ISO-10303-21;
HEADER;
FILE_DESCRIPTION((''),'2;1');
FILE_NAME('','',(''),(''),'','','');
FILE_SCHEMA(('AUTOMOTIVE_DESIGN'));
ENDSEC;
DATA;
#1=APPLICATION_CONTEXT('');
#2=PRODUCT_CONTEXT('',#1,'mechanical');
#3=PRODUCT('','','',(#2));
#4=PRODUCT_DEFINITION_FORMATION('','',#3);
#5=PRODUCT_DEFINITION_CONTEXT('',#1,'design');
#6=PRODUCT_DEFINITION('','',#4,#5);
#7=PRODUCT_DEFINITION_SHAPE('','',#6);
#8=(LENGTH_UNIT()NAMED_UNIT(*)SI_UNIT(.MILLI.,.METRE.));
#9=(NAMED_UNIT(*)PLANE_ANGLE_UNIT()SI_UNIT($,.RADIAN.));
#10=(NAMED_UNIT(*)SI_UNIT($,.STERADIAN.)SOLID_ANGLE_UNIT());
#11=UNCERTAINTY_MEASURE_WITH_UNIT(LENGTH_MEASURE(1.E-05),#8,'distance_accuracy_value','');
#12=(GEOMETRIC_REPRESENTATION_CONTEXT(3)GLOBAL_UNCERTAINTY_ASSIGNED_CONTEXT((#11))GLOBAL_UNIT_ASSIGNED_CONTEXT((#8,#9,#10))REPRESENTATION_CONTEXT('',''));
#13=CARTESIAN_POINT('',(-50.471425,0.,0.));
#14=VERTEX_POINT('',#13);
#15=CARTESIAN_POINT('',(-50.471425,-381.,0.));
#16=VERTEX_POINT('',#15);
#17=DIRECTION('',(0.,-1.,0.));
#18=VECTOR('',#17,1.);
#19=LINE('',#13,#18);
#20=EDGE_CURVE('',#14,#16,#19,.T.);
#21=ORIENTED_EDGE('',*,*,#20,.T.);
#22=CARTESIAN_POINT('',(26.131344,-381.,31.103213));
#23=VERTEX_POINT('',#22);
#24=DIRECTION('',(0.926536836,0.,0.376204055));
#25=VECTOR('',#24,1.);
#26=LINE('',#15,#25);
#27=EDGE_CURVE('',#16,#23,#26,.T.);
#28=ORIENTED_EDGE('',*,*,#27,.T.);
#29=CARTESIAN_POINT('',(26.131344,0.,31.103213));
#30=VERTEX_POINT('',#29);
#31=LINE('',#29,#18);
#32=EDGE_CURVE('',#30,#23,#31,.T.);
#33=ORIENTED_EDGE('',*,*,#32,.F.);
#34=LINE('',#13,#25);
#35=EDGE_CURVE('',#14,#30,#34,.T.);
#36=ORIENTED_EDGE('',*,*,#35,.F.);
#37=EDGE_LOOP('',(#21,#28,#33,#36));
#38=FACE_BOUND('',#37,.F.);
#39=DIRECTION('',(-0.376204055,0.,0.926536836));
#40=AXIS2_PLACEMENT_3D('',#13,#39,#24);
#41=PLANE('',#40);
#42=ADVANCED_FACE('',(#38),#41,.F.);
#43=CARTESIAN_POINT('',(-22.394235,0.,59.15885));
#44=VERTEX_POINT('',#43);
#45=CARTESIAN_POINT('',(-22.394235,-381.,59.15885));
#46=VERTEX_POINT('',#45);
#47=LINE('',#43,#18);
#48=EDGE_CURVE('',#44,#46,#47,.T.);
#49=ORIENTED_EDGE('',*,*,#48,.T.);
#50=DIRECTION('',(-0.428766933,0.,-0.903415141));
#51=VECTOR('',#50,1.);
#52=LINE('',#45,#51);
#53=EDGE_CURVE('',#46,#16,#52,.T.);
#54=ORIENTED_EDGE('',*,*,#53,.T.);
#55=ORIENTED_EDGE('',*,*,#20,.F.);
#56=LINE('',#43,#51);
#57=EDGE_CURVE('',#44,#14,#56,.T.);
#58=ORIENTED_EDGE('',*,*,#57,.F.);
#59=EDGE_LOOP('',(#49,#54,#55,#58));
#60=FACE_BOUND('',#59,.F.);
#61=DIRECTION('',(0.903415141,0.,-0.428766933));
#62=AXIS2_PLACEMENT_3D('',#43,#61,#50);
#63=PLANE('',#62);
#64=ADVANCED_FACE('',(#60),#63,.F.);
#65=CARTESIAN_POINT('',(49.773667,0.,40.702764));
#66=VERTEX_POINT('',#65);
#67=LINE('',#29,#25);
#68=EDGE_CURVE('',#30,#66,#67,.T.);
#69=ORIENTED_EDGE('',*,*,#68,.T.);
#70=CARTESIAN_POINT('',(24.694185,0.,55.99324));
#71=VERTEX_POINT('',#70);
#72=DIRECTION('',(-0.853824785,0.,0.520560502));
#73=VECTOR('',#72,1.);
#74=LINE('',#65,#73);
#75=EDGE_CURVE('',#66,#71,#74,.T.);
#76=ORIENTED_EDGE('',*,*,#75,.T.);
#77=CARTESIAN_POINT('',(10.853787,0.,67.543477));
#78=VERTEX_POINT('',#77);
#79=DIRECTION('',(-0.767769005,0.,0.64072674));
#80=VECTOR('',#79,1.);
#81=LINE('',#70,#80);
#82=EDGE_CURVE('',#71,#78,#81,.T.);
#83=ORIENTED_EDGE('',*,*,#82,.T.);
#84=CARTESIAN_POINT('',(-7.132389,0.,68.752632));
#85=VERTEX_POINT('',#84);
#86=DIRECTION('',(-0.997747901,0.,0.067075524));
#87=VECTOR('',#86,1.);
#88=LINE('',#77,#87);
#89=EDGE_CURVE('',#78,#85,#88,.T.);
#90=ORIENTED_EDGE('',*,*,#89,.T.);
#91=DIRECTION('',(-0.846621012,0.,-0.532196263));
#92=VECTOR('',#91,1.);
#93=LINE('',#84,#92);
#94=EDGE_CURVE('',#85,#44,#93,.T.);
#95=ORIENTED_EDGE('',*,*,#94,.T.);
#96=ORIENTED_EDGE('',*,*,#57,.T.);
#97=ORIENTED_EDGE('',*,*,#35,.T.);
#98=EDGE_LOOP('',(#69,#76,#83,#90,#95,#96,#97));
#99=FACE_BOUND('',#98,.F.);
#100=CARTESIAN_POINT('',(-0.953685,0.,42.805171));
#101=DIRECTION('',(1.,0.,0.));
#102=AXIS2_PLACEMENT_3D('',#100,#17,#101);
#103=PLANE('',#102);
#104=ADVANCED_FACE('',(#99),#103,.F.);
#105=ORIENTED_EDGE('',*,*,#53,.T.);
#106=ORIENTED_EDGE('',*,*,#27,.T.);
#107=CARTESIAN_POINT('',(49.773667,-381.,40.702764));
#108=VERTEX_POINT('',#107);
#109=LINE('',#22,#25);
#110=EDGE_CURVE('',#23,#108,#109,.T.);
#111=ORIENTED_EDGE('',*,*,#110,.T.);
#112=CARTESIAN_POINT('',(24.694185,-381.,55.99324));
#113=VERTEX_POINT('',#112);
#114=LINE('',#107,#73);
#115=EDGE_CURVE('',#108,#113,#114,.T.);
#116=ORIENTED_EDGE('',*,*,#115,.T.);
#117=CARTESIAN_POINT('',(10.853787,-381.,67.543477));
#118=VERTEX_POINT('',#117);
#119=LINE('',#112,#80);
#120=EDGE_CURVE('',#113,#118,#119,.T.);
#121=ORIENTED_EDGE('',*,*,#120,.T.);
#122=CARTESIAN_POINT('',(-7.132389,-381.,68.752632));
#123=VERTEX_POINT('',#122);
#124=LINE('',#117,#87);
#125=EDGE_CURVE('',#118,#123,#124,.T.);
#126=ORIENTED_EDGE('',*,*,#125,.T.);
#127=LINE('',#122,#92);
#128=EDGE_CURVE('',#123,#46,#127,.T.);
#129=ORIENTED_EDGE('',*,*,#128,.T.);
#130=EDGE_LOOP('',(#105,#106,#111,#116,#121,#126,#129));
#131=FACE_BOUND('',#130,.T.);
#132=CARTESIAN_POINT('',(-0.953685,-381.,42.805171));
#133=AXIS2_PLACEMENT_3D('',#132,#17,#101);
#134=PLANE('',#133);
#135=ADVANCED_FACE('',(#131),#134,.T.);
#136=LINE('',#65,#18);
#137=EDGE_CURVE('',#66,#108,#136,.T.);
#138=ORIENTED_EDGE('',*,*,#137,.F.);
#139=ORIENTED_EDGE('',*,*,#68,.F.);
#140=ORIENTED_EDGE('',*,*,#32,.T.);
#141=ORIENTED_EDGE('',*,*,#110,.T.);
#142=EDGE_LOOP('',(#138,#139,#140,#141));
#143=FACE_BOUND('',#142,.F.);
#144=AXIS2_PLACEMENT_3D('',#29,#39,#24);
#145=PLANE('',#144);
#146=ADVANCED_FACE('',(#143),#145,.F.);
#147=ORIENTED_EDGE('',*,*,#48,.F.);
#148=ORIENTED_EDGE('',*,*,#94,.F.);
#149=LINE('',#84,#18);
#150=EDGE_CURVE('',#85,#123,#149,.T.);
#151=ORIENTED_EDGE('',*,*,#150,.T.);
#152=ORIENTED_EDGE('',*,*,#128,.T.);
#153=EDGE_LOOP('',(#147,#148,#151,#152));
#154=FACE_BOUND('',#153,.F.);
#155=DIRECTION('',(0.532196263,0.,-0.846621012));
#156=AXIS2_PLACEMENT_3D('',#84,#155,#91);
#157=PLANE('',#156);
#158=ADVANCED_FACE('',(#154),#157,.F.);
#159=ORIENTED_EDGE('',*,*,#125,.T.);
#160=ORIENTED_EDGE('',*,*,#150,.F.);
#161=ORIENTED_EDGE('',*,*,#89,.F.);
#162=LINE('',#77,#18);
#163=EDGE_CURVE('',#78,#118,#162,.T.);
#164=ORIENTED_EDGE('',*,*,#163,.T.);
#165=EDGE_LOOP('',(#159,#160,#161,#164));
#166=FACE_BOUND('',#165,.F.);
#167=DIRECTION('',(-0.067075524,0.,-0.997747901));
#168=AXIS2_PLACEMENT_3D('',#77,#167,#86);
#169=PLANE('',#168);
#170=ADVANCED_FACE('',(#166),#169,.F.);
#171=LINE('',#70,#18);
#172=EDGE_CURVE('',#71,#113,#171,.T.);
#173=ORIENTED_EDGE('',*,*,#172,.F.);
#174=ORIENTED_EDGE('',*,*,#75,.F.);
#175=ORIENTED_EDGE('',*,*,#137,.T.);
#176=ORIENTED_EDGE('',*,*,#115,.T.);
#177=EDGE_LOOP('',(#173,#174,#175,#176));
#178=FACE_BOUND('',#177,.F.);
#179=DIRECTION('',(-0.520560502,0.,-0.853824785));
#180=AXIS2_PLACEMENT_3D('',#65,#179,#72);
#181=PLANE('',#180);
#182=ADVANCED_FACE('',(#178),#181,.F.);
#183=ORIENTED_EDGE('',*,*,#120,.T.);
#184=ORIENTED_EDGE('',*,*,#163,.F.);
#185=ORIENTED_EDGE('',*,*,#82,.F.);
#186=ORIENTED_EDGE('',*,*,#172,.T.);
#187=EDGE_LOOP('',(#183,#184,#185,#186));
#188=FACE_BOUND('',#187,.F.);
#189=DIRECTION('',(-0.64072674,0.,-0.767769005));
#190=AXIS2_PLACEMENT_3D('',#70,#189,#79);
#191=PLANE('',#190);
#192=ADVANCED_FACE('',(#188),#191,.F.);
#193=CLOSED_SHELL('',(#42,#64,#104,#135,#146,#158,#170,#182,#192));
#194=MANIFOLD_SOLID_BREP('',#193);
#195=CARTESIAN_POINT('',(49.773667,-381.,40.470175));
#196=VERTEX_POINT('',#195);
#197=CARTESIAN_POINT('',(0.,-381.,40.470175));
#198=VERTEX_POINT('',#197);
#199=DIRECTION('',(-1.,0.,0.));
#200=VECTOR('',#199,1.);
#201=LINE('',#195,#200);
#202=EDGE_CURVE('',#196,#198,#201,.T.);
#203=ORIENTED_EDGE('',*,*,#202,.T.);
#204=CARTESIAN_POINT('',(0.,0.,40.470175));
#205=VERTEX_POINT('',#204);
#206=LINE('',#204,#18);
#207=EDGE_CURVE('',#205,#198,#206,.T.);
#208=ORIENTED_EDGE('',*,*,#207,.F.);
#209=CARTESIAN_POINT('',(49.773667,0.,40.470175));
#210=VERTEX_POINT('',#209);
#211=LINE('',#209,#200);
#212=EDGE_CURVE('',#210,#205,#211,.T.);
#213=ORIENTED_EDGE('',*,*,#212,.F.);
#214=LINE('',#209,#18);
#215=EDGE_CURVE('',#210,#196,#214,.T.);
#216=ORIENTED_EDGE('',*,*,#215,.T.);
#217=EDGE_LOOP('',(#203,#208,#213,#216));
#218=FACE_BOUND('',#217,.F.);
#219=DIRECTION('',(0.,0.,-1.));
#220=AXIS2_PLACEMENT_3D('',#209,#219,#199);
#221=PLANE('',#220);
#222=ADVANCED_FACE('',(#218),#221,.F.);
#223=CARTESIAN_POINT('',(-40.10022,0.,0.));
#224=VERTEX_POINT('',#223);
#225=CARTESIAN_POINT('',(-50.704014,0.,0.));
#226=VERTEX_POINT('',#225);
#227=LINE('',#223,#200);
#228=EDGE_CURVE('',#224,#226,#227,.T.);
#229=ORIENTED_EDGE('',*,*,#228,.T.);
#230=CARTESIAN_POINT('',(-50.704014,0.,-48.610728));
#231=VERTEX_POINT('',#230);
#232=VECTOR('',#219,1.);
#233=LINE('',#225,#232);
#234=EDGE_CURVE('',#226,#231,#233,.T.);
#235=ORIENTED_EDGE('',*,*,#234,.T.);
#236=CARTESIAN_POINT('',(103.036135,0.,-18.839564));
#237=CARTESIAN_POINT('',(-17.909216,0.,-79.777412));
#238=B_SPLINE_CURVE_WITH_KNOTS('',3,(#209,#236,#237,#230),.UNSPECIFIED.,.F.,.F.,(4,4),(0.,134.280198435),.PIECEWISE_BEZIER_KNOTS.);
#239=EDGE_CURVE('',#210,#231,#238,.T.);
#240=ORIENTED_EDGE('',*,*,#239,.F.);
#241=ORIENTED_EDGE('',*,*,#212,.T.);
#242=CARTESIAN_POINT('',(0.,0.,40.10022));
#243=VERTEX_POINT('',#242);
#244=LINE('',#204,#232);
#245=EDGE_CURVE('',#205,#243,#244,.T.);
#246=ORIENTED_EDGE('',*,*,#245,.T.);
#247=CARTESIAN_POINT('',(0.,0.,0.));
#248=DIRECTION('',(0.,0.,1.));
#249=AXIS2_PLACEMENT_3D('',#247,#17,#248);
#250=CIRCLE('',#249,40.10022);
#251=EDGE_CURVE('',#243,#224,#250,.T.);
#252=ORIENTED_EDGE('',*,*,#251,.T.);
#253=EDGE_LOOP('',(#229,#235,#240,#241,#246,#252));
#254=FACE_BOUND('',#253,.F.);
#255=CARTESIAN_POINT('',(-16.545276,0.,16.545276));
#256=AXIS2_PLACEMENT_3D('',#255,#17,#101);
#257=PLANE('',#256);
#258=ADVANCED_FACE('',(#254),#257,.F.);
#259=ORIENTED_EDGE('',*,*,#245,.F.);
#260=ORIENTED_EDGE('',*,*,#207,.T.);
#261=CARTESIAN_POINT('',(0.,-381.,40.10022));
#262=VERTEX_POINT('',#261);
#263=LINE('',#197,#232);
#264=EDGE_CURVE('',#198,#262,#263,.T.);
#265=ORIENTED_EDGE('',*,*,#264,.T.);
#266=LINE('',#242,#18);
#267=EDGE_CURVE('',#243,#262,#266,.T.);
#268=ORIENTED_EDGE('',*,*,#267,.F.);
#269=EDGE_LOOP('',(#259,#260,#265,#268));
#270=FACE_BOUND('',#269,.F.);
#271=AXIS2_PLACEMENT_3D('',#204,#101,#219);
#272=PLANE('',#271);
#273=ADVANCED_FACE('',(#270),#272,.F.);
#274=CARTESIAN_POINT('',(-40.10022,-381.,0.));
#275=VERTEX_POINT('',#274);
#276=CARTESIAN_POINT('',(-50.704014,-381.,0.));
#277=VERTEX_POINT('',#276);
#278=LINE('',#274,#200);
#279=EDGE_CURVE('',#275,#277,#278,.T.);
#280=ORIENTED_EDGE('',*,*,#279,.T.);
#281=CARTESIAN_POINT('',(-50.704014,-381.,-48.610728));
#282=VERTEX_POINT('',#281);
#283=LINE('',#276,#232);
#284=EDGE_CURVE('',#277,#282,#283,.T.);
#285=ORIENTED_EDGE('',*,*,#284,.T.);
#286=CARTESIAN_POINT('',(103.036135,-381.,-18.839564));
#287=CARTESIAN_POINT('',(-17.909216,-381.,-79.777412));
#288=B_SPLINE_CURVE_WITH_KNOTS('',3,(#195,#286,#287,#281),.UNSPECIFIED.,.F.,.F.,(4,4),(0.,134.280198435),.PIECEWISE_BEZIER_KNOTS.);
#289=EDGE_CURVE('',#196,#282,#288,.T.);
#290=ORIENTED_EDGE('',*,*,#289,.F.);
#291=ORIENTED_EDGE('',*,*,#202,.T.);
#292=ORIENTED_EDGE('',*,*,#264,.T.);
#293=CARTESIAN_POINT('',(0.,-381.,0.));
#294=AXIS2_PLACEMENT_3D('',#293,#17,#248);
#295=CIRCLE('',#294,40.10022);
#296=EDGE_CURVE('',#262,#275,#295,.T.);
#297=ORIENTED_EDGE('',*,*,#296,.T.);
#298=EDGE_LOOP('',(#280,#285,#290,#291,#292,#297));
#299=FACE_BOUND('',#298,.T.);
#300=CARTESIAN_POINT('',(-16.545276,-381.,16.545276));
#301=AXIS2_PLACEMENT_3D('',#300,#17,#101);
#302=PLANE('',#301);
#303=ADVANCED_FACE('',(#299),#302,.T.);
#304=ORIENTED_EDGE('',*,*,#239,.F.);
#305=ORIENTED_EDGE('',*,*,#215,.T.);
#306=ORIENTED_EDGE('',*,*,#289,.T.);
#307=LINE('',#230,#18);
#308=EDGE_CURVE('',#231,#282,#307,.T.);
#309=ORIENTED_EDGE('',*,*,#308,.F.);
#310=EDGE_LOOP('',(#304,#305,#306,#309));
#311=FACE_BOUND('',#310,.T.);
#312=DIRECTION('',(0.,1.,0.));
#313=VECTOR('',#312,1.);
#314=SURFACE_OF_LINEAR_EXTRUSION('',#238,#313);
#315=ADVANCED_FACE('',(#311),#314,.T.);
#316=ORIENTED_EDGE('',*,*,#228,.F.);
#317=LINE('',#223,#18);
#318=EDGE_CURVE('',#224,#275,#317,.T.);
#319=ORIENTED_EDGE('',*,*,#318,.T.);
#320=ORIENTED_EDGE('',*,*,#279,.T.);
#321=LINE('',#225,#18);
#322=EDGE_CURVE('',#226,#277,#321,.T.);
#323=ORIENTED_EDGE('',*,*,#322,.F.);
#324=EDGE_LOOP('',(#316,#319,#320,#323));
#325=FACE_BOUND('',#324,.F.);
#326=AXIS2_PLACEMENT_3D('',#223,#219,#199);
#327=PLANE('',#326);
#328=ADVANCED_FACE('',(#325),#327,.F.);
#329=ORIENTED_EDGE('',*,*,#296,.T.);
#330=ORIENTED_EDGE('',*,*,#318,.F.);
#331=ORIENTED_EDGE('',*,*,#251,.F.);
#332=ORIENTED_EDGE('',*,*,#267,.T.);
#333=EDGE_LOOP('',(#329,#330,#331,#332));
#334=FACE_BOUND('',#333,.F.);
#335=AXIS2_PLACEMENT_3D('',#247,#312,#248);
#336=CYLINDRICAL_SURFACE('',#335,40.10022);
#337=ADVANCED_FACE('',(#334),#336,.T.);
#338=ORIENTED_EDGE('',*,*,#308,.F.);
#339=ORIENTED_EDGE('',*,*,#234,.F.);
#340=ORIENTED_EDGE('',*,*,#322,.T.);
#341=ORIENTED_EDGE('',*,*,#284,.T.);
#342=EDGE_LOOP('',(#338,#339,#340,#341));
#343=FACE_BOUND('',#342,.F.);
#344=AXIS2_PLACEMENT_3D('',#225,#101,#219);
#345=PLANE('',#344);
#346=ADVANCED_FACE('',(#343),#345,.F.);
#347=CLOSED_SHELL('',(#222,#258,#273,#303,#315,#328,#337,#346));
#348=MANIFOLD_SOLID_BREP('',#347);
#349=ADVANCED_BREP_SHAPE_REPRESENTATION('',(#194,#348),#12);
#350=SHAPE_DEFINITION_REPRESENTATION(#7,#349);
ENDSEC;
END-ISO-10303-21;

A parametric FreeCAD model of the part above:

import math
import FreeCAD as App
import Part
import Sketcher

V = App.Vector
Q = App.Units.Quantity


def add_polygon(sketch, points):
    """Adds a closed chain of lines whose ends are joined by coincident constraints."""
    first, n = sketch.GeometryCount, len(points)
    for a, b in zip(points, points[1:] + points[:1]):
        sketch.addGeometry(Part.LineSegment(App.Vector(*a, 0), App.Vector(*b, 0)), False)
    for i in range(n):
        sketch.addConstraint(Sketcher.Constraint("Coincident", first + i, 2, first + (i + 1) % n, 1))

doc = App.newDocument("Part")
body = doc.addObject("PartDesign::Body", "Body")

# Sketch on XZ plane
sketch1 = doc.addObject("Sketcher::SketchObject", "Sketch")
body.addObject(sketch1)
sketch1.AttachmentSupport = (doc.XZ_Plane, [""])
sketch1.MapMode = "FlatFace"
add_polygon(sketch1, [(11, 68), (-7, 69), (-22, 59), (-50, 0), (26, 31), (50, 41), (25, 56)])  # lines 0-6
sketch1.addConstraint(Sketcher.Constraint("PointOnObject", 2, 2, -1))
sketch1.addConstraint(Sketcher.Constraint("Parallel", 3, 4))
sketch1.addConstraint(Sketcher.Constraint("Equal", 0, 1))
sketch1.addConstraint(Sketcher.Constraint("Equal", 1, 6))
sketch1.addConstraint(Sketcher.Constraint("DistanceX", 3, 2, 4, 2, Q("0.9308001 in")))
sketch1.addConstraint(Sketcher.Constraint("Distance", 5, 29.373101))
sketch1.addConstraint(Sketcher.Constraint("DistanceX", 1, 2, 4, 2, 72.167902))
sketch1.addConstraint(Sketcher.Constraint("DistanceX", 6, 2, 5, 2, 13.840398))
sketch1.addConstraint(Sketcher.Constraint("Distance", 2, 65.483572))
sketch1.addConstraint(Sketcher.Constraint("Distance", 3, 82.676442))
sketch1.addConstraint(Sketcher.Constraint("DistanceX", 0, 2, -1, 1, 7.132389))
sketch1.addConstraint(Sketcher.Constraint("DistanceY", -1, 1, 0, 2, 68.752632))
sketch1.addConstraint(Sketcher.Constraint("DistanceY", -1, 1, 1, 2, 59.15885))
sketch1.addConstraint(Sketcher.Constraint("DistanceY", -1, 1, 5, 2, 55.99324))
pad1 = doc.addObject("PartDesign::Pad", "Pad")
body.addObject(pad1)
pad1.Profile = sketch1
pad1.Length = Q("15 in")
body2 = doc.addObject("PartDesign::Body", "Body001")

# Sketch on XZ plane
sketch2 = doc.addObject("Sketcher::SketchObject", "Sketch001")
body2.addObject(sketch2)
sketch2.AttachmentSupport = (doc.getObject("XZ_Plane001"), [""])
sketch2.MapMode = "FlatFace"
sketch2.addGeometry(Part.ArcOfCircle(Part.Circle(V(0, 0, 0), V(0, 0, 1), 40.10022), math.radians(90), math.radians(180)), False)
sketch2.addGeometry(Part.LineSegment(V(-40.10022, 0, 0), V(-50.704014, 0, 0)), False)
sketch2.addGeometry(Part.LineSegment(V(-50.704014, 0, 0), V(-50.704014, -48.610728, 0)), False)
sketch2.addGeometry(Part.BSplineCurve([V(49.773667, 40.470175, 0), V(103.036135, -18.839564, 0), V(-17.909216, -79.777412, 0), V(-50.704014, -48.610728, 0)], [4, 4], [0, 134.280198435], False, 3, [1, 1, 1, 1], False), False)
sketch2.addGeometry(Part.LineSegment(V(49.773667, 40.470175, 0), V(0, 40.470175, 0)), False)
sketch2.addGeometry(Part.LineSegment(V(0, 40.470175, 0), V(0, 40.10022, 0)), False)
sketch2.addConstraint(Sketcher.Constraint("Block", 3))
sketch2.addConstraint(Sketcher.Constraint("Coincident", 0, 2, 1, 1))
sketch2.addConstraint(Sketcher.Constraint("Coincident", 1, 2, 2, 1))
sketch2.addConstraint(Sketcher.Constraint("Coincident", 2, 2, 3, 2))
sketch2.addConstraint(Sketcher.Constraint("Coincident", 3, 1, 4, 1))
sketch2.addConstraint(Sketcher.Constraint("Coincident", 4, 2, 5, 1))
sketch2.addConstraint(Sketcher.Constraint("Coincident", 5, 2, 0, 1))
sketch2.addConstraint(Sketcher.Constraint("Horizontal", 1))
sketch2.addConstraint(Sketcher.Constraint("Vertical", 2))
sketch2.addConstraint(Sketcher.Constraint("Horizontal", 4))
sketch2.addConstraint(Sketcher.Constraint("Vertical", 5))
sketch2.addConstraint(Sketcher.Constraint("Coincident", 0, 3, -1, 1))
sketch2.addConstraint(Sketcher.Constraint("PointOnObject", 0, 2, -1))
sketch2.addConstraint(Sketcher.Constraint("PointOnObject", 4, 2, -2))
sketch2.addConstraint(Sketcher.Constraint("Radius", 0, 40.10022))
pad2 = doc.addObject("PartDesign::Pad", "Pad001")
body2.addObject(pad2)
pad2.Profile = sketch2
pad2.Length = Q("15 in")

doc.recompute()
